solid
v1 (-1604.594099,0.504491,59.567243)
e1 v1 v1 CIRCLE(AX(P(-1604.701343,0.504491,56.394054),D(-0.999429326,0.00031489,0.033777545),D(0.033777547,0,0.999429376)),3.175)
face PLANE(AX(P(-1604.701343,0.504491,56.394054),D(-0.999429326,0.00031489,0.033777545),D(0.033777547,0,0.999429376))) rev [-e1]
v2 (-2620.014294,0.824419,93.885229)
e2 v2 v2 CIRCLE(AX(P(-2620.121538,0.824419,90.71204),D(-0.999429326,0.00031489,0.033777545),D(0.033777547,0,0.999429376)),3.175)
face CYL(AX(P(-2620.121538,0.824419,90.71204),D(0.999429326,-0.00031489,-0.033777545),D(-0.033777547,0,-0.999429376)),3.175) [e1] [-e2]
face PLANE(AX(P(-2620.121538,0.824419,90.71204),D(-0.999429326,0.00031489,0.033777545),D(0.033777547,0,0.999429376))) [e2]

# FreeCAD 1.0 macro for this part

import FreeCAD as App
import Part
import Sketcher
from FreeCAD import Vector
Q = App.Units.Quantity

doc = App.newDocument("Part")
params = doc.addObject("Spreadsheet::Sheet", "Params")
for row, (alias, value) in enumerate([
    ("sketch1_diameter", "0.25 in"),
    ("pad1_length", "40 in"),
], start=1):
    params.set(f"A{row}", alias)
    params.set(f"B{row}", "=" + value)
    params.setAlias(f"B{row}", alias)

body = doc.addObject("PartDesign::Body", "Body")

sketch1 = body.newObject("Sketcher::SketchObject", "Sketch")
sketch1.Placement = App.Placement(Vector(-1604.774268, 0.505615, 54.236287), App.Rotation(Vector(0.033777378, -0.000520585, 0.999429246), Vector(0.000332294, 0.999999815, 0.000509652), Vector(-0.999429326, 0.00031489, 0.033777545), "ZXY"))
sketch1.addGeometry(Part.Circle(Vector(2.159, 0, 0), Vector(0, 0, 1), 3.175), False)
sketch1.addConstraint(Sketcher.Constraint("PointOnObject", 0, 3, -1))
sketch1.addConstraint(Sketcher.Constraint("Diameter", 0, Q("0.25 in")))
sketch1.addConstraint(Sketcher.Constraint("DistanceX", -1, 1, 0, 3, Q("0.085 in")))
sketch1.setExpression("Constraints[1]", "Params.sketch1_diameter")
pad1 = body.newObject("PartDesign::Pad", "Pad")
pad1.Profile = sketch1
pad1.setExpression("Length", "Params.pad1_length")

doc.recompute()
